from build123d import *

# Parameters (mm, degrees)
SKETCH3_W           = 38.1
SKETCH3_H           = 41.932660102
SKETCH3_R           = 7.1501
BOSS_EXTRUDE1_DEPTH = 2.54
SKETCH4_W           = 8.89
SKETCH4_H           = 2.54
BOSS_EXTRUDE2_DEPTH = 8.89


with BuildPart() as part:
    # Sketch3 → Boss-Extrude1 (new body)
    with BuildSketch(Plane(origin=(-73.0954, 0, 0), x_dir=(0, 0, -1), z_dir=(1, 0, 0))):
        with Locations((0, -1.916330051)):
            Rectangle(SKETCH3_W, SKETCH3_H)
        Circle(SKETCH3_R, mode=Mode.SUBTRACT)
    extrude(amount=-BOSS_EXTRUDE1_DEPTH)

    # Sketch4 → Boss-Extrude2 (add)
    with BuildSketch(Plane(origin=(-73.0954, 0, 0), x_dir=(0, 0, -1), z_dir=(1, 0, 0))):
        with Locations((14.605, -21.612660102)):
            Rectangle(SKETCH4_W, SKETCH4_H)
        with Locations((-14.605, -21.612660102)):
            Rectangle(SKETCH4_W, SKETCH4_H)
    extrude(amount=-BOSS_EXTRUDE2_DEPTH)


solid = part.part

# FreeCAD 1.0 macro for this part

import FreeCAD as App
import Part
import Sketcher
from FreeCAD import Vector
Q = App.Units.Quantity

doc = App.newDocument("Part")
body = doc.addObject("PartDesign::Body", "Body")

sketch1 = body.newObject("Sketcher::SketchObject", "Sketch")
sketch1.AttachmentSupport = (doc.getObject("YZ_Plane"), [""])
sketch1.MapMode = "FlatFace"
sketch1.AttachmentOffset = App.Placement(Vector(0, 0, -73.0954), App.Rotation())
sketch1.addGeometry([
    Part.LineSegment(Vector(19.05, 19.05, 0), Vector(-22.88266, 19.05, 0)),
    Part.LineSegment(Vector(-22.88266, 19.05, 0), Vector(-22.88266, -19.05, 0)),
    Part.LineSegment(Vector(-22.88266, -19.05, 0), Vector(19.05, -19.05, 0)),
    Part.LineSegment(Vector(19.05, -19.05, 0), Vector(19.05, 19.05, 0)),
    Part.Circle(Vector(0, 0, 0), Vector(0, 0, 1), 7.1501),
], False)
sketch1.addConstraint([
    Sketcher.Constraint("Coincident", 0, 2, 1, 1),
    Sketcher.Constraint("Coincident", 1, 2, 2, 1),
    Sketcher.Constraint("Coincident", 2, 2, 3, 1),
    Sketcher.Constraint("Coincident", 3, 2, 0, 1),
    Sketcher.Constraint("Horizontal", 0),
    Sketcher.Constraint("Vertical", 1),
    Sketcher.Constraint("Horizontal", 2),
    Sketcher.Constraint("Vertical", 3),
    Sketcher.Constraint("Coincident", 4, 3, -1, 1),
    Sketcher.Constraint("Diameter", 4, Q("0.563 in")),
    Sketcher.Constraint("DistanceY", 1, 2, 1, 1, Q("1.5 in")),
    Sketcher.Constraint("DistanceY", -1, 1, 0, 2, Q("0.75 in")),
    Sketcher.Constraint("DistanceX", -1, 1, 2, 2, Q("0.75 in")),
    Sketcher.Constraint("DistanceX", 0, 2, 0, 1, Q("41.93266 mm")),
])
pad1 = body.newObject("PartDesign::Pad", "Pad")
pad1.Profile = sketch1
pad1.Length = Q("0.1 in")
pad1.Reversed = True

sketch2 = body.newObject("Sketcher::SketchObject", "Sketch001")
sketch2.AttachmentSupport = (doc.getObject("YZ_Plane"), [""])
sketch2.MapMode = "FlatFace"
sketch2.AttachmentOffset = App.Placement(Vector(0, 0, -73.0954), App.Rotation())
sketch2.addGeometry([
    Part.LineSegment(Vector(-20.34266, -10.16, 0), Vector(-22.88266, -10.16, 0)),
    Part.LineSegment(Vector(-22.88266, -10.16, 0), Vector(-22.88266, -19.05, 0)),
    Part.LineSegment(Vector(-22.88266, -19.05, 0), Vector(-20.34266, -19.05, 0)),
    Part.LineSegment(Vector(-20.34266, -19.05, 0), Vector(-20.34266, -10.16, 0)),
    Part.LineSegment(Vector(-20.34266, 19.05, 0), Vector(-22.88266, 19.05, 0)),
    Part.LineSegment(Vector(-22.88266, 19.05, 0), Vector(-22.88266, 10.16, 0)),
    Part.LineSegment(Vector(-22.88266, 10.16, 0), Vector(-20.34266, 10.16, 0)),
    Part.LineSegment(Vector(-20.34266, 10.16, 0), Vector(-20.34266, 19.05, 0)),
], False)
sketch2.addConstraint([
    Sketcher.Constraint("Coincident", 0, 2, 1, 1),
    Sketcher.Constraint("Coincident", 1, 2, 2, 1),
    Sketcher.Constraint("Coincident", 2, 2, 3, 1),
    Sketcher.Constraint("Coincident", 3, 2, 0, 1),
    Sketcher.Constraint("Coincident", 4, 2, 5, 1),
    Sketcher.Constraint("Coincident", 5, 2, 6, 1),
    Sketcher.Constraint("Coincident", 6, 2, 7, 1),
    Sketcher.Constraint("Coincident", 7, 2, 4, 1),
    Sketcher.Constraint("Horizontal", 0),
    Sketcher.Constraint("Vertical", 1),
    Sketcher.Constraint("Horizontal", 2),
    Sketcher.Constraint("Vertical", 3),
    Sketcher.Constraint("Horizontal", 4),
    Sketcher.Constraint("Vertical", 5),
    Sketcher.Constraint("Horizontal", 6),
    Sketcher.Constraint("Vertical", 7),
    Sketcher.Constraint("Symmetric", 1, 2, 4, 2, -1),
    Sketcher.Constraint("Symmetric", 3, 2, 6, 2, -1),
    Sketcher.Constraint("DistanceX", 0, 2, 0, 1, Q("0.1 in")),
    Sketcher.Constraint("DistanceY", 1, 2, 1, 1, Q("0.35 in")),
    Sketcher.Constraint("DistanceY", 0, 2, -1, 1, Q("0.4 in")),
    Sketcher.Constraint("DistanceX", 0, 2, -1, 1, Q("22.88266 mm")),
])
pad2 = body.newObject("PartDesign::Pad", "Pad001")
pad2.Profile = sketch2
pad2.Length = Q("0.35 in")
pad2.Reversed = True

doc.recompute()
